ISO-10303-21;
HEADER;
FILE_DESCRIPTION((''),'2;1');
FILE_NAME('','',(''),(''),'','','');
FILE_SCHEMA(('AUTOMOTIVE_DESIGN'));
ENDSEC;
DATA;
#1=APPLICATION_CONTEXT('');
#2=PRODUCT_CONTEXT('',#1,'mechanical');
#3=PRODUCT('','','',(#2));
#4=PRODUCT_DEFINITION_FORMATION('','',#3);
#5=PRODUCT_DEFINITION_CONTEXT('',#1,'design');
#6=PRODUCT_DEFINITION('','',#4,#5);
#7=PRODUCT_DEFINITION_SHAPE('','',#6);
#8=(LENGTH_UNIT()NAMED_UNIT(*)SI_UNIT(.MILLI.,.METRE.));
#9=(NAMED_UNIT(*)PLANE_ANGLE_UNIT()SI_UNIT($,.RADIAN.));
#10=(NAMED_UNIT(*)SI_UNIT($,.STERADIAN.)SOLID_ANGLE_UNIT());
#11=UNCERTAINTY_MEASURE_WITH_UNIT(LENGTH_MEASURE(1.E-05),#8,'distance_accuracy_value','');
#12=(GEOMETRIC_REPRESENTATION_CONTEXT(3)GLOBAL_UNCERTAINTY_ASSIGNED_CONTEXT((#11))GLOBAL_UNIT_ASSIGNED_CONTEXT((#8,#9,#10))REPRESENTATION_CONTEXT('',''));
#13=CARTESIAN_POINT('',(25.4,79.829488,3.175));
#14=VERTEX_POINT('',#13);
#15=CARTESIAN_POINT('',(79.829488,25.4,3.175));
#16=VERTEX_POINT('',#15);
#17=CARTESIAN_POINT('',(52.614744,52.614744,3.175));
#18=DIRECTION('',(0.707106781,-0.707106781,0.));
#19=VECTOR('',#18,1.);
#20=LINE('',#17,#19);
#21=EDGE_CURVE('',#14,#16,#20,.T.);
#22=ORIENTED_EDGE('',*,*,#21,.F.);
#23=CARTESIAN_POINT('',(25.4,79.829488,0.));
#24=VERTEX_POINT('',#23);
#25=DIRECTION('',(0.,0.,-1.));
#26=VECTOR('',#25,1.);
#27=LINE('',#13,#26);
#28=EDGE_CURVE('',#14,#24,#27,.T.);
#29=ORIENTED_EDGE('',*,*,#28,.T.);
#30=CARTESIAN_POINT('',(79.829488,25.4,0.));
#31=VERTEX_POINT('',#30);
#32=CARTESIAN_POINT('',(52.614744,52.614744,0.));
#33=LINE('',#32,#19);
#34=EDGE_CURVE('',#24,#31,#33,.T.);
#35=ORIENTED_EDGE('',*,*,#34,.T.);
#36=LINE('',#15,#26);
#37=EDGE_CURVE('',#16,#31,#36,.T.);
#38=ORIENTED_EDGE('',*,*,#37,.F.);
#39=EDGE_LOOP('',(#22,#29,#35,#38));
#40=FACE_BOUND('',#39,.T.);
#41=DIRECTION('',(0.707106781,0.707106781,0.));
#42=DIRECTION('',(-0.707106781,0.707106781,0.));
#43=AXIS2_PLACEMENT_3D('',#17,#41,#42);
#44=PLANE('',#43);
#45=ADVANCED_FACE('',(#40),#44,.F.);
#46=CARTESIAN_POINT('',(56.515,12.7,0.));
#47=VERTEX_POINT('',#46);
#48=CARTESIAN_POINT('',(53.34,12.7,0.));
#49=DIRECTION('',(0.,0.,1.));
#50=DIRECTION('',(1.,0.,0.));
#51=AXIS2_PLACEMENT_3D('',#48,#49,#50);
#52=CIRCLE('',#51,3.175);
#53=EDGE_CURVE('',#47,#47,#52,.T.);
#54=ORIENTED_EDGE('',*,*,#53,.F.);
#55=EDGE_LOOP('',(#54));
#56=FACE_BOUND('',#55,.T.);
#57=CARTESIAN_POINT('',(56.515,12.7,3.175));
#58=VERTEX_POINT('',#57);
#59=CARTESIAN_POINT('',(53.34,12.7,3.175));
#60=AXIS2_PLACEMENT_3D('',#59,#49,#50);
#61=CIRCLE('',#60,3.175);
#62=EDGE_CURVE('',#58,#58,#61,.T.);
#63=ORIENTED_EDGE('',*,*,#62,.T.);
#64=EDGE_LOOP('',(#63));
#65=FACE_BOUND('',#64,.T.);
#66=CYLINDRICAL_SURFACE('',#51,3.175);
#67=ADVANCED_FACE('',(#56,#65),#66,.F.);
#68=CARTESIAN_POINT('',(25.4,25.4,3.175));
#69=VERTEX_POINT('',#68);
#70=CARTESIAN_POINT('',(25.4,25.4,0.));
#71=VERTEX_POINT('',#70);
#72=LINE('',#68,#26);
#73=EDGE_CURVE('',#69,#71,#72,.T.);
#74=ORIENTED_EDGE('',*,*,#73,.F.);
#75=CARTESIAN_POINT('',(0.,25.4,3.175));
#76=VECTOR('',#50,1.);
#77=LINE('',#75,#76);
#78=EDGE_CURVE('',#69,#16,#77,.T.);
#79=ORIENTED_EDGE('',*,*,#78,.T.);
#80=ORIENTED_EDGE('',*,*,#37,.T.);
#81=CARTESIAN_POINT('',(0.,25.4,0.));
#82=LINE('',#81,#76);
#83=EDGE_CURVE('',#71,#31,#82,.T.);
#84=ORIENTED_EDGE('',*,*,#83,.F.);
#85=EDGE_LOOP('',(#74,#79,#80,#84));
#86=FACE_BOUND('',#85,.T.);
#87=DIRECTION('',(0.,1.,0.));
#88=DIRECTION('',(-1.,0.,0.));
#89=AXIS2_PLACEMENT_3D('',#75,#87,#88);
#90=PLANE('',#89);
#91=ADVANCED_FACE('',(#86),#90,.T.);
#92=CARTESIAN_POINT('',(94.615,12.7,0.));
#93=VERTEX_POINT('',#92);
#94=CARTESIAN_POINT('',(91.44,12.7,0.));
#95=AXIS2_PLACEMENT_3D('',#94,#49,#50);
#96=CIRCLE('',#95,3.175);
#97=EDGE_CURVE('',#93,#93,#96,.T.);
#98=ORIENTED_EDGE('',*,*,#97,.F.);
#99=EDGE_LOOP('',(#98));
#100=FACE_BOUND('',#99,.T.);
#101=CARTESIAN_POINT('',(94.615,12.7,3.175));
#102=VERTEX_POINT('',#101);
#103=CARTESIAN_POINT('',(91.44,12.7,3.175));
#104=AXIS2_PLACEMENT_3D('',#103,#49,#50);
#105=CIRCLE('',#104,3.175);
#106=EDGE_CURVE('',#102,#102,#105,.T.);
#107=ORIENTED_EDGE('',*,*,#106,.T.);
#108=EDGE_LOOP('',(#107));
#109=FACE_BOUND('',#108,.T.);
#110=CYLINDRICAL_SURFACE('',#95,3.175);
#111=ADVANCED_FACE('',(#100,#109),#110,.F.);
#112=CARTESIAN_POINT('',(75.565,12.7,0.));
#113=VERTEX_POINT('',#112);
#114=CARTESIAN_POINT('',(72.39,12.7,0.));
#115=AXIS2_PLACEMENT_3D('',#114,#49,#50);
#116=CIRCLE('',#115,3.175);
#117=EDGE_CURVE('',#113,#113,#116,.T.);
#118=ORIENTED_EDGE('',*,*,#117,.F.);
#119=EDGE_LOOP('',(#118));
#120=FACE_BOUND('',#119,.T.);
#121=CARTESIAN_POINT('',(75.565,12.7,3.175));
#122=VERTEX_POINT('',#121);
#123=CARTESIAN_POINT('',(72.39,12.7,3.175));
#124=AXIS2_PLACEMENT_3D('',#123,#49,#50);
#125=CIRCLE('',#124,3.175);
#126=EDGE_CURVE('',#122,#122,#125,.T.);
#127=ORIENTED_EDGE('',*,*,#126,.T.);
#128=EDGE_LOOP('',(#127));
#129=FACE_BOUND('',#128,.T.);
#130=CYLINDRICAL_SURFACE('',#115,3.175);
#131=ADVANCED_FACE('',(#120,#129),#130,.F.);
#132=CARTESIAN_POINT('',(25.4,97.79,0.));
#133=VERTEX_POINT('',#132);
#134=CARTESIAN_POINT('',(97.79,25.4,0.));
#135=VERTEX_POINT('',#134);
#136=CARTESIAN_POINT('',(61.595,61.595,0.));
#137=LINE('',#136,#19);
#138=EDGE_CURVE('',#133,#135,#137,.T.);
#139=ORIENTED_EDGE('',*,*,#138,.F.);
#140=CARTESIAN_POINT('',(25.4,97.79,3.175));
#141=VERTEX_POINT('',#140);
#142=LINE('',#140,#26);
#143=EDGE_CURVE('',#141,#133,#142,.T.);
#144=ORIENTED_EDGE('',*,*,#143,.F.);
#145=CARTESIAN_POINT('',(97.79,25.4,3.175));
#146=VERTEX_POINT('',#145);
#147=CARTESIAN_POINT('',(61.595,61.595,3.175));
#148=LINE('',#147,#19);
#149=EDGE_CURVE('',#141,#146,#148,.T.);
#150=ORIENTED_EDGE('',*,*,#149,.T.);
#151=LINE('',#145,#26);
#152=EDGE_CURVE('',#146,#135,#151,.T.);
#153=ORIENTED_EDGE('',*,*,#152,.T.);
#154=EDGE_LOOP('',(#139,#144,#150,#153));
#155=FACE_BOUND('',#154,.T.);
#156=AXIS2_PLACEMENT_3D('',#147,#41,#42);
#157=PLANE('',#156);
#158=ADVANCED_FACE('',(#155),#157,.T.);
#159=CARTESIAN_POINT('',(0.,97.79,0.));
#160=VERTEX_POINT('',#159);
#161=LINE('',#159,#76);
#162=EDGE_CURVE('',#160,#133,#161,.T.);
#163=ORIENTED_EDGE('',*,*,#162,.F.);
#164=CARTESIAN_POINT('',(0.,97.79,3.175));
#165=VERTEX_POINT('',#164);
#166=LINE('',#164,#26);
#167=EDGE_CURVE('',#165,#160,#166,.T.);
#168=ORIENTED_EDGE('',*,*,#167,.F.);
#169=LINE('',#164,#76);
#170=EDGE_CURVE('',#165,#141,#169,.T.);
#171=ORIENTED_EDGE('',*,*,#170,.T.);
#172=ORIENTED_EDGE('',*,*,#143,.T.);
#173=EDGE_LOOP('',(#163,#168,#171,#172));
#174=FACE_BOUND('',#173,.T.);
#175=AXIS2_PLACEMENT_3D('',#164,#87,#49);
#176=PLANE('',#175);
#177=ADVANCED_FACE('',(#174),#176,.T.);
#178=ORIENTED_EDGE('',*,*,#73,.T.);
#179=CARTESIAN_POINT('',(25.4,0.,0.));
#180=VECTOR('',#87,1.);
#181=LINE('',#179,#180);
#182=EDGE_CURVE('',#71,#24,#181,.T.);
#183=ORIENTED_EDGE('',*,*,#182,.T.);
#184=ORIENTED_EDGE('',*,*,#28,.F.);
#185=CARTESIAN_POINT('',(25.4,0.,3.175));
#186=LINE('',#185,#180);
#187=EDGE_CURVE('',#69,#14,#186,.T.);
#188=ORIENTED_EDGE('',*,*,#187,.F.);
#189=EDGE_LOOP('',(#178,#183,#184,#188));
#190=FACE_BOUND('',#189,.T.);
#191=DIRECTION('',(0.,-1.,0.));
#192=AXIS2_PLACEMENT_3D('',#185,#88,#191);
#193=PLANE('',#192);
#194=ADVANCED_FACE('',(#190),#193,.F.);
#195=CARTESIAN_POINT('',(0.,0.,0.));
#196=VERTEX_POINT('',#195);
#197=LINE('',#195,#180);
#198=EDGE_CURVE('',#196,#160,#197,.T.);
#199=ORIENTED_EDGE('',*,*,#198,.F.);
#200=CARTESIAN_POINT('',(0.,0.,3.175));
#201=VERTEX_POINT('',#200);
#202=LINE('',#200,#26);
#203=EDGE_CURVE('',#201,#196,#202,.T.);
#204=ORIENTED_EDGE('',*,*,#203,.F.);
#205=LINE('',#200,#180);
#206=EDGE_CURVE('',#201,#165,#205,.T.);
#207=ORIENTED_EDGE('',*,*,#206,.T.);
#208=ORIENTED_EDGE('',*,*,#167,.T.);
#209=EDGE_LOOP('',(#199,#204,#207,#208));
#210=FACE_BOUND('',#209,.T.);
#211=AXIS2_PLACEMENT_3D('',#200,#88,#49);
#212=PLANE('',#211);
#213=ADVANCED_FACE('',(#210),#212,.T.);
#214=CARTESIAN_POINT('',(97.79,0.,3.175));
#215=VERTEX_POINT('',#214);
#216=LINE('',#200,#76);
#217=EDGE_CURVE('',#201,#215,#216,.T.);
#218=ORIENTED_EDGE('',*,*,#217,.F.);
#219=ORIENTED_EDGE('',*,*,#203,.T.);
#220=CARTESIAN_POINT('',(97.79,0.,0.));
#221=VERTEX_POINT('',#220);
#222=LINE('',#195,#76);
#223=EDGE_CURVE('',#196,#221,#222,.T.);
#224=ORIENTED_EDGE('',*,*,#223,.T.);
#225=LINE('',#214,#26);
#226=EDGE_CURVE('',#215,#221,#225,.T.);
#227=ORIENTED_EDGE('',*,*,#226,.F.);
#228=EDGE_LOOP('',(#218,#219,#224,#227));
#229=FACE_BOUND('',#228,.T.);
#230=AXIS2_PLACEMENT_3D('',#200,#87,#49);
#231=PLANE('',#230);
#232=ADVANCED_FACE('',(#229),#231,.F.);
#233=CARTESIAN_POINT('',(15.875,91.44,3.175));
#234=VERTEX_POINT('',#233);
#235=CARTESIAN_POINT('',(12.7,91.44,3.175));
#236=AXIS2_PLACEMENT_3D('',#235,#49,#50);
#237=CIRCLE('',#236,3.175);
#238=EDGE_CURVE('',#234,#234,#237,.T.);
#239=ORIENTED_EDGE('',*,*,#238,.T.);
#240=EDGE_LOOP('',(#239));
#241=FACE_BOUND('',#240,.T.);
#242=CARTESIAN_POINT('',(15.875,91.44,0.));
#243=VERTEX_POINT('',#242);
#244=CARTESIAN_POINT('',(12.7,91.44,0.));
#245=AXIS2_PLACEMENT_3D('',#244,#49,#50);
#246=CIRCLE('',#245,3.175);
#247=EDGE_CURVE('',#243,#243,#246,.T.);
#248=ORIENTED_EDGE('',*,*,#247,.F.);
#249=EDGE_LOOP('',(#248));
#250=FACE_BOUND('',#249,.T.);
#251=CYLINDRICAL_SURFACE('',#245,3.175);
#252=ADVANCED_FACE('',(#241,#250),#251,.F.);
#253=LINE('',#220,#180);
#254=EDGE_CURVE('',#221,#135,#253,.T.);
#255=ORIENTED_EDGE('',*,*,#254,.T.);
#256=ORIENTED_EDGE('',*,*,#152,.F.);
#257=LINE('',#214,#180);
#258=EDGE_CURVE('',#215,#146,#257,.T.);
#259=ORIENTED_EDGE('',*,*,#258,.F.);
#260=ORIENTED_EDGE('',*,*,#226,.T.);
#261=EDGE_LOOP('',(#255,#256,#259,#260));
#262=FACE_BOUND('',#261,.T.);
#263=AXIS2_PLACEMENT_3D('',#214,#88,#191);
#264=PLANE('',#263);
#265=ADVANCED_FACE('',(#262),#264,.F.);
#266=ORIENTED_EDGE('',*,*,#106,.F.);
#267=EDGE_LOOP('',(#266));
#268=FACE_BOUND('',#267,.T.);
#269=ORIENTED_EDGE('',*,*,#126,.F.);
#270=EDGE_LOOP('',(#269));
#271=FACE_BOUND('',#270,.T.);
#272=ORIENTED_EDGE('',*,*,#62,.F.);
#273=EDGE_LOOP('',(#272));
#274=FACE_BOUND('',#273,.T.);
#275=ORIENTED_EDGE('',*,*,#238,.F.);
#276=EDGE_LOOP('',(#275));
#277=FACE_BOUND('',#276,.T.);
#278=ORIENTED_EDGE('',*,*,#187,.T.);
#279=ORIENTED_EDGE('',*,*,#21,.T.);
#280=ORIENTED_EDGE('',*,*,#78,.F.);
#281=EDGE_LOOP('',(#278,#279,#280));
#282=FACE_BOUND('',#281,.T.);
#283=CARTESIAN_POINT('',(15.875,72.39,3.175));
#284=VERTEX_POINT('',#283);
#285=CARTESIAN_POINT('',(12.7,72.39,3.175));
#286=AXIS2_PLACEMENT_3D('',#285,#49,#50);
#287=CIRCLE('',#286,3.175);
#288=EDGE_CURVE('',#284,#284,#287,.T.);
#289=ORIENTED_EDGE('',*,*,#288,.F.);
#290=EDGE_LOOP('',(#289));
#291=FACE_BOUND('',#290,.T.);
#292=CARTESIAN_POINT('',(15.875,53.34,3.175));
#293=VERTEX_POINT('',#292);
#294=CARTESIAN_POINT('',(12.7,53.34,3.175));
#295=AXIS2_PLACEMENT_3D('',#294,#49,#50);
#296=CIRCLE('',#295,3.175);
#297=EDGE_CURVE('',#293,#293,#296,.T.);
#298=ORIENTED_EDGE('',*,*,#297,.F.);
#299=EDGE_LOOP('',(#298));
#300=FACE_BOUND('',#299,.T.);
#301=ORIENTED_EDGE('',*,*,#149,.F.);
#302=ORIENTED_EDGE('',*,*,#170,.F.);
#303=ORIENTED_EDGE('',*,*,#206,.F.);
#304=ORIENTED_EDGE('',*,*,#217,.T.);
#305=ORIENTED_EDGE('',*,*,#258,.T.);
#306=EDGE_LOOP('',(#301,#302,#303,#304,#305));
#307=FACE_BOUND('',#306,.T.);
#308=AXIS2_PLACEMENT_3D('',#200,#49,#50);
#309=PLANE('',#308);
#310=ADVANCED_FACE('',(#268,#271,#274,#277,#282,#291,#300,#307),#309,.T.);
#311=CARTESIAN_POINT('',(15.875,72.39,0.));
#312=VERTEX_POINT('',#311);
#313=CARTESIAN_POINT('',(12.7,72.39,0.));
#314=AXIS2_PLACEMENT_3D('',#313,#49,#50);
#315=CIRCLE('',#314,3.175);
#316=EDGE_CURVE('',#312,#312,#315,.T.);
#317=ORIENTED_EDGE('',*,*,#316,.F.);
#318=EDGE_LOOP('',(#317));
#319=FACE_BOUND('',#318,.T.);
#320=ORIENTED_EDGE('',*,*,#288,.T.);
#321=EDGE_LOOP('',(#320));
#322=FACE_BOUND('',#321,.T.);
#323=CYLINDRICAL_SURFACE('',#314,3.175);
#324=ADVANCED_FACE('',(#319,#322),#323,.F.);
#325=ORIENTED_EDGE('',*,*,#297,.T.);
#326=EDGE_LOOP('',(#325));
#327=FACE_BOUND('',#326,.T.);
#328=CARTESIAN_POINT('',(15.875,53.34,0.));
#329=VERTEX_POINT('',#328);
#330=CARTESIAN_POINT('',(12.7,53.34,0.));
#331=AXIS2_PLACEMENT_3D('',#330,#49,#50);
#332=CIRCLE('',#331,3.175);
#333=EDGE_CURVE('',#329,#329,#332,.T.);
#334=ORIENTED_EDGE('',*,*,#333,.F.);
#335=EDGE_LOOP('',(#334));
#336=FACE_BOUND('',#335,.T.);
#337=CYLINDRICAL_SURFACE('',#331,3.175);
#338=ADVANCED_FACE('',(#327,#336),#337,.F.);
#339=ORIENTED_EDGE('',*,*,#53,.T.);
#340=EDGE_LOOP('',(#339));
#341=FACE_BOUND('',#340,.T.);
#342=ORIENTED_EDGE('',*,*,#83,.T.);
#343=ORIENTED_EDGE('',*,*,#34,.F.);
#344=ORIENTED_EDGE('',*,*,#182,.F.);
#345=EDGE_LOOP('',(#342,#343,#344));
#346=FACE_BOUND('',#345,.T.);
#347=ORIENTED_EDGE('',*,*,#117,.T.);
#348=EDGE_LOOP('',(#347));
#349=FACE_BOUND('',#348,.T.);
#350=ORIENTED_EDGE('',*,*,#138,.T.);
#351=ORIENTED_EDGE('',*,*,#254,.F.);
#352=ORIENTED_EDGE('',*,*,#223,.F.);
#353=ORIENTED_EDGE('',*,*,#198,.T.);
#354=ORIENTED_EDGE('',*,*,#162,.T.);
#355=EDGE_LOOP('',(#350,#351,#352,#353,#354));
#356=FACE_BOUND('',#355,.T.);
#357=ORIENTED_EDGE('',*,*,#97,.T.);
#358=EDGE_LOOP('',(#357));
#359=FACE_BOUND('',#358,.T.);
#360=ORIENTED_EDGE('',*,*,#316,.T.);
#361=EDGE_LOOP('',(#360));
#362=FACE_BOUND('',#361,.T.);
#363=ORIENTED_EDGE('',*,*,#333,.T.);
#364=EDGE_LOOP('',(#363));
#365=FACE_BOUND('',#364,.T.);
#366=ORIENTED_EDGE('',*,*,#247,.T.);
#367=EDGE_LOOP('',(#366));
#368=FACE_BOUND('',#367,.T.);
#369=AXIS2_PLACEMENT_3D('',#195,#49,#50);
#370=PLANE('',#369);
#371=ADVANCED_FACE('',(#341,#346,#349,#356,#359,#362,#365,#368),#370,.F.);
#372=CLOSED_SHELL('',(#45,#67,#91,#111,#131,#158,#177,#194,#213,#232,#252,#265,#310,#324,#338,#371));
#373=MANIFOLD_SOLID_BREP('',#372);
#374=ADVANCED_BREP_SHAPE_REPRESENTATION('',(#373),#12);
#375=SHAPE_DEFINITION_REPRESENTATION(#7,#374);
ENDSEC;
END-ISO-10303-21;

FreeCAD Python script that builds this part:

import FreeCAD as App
import Part
import Sketcher
from FreeCAD import Vector
Q = App.Units.Quantity


def add_polygon(sketch, points):
    """Adds a closed chain of lines whose ends are joined by coincident constraints."""
    first, n = sketch.GeometryCount, len(points)
    for a, b in zip(points, points[1:] + points[:1]):
        sketch.addGeometry(Part.LineSegment(App.Vector(*a, 0), App.Vector(*b, 0)), False)
    for i in range(n):
        sketch.addConstraint(Sketcher.Constraint("Coincident", first + i, 2, first + (i + 1) % n, 1))

doc = App.newDocument("Part")
params = doc.addObject("Spreadsheet::Sheet", "Params")
for row, (alias, value) in enumerate([
    ("sketch1_width", "1 in"),
    ("sketch1_width2", "3.85 in"),
    ("pad1_length", "0.125 in"),
    ("sketch2_diameter", "0.25 in"),
], start=1):
    params.set(f"A{row}", alias)
    params.set(f"B{row}", "=" + value)
    params.setAlias(f"B{row}", alias)

body = doc.addObject("PartDesign::Body", "Body")

sketch1 = body.newObject("Sketcher::SketchObject", "Sketch")
sketch1.AttachmentSupport = (doc.getObject("XY_Plane"), [""])
sketch1.MapMode = "FlatFace"
add_polygon(sketch1, [(98, 25), (25, 98), (0, 98), (0, 0), (98, 0)])
add_polygon(sketch1, [(25, 25), (25, 80), (80, 25)])
sketch1.addConstraint(Sketcher.Constraint("Horizontal", 1))
sketch1.addConstraint(Sketcher.Constraint("Vertical", 2))
sketch1.addConstraint(Sketcher.Constraint("Horizontal", 3))
sketch1.addConstraint(Sketcher.Constraint("Vertical", 4))
sketch1.addConstraint(Sketcher.Constraint("Vertical", 5))
sketch1.addConstraint(Sketcher.Constraint("Horizontal", 7))
sketch1.addConstraint(Sketcher.Constraint("Coincident", 2, 2, -1, 1))
sketch1.addConstraint(Sketcher.Constraint("Parallel", 0, 6))
sketch1.addConstraint(Sketcher.Constraint("Horizontal", 4, 2, 6, 2))
sketch1.addConstraint(Sketcher.Constraint("Vertical", 0, 2, 5, 2))
sketch1.addConstraint(Sketcher.Constraint("Equal", 3, 2))
sketch1.addConstraint(Sketcher.Constraint("Equal", 1, 4))
sketch1.addConstraint(Sketcher.Constraint("DistanceX", 1, 2, 1, 1, Q("1 in")))
sketch1.addConstraint(Sketcher.Constraint("DistanceX", 3, 1, 3, 2, Q("3.85 in")))
sketch1.addConstraint(Sketcher.Constraint("Distance", 6, 76.97492))
sketch1.setExpression("Constraints[20]", "Params.sketch1_width")
sketch1.setExpression("Constraints[21]", "Params.sketch1_width2")
pad1 = body.newObject("PartDesign::Pad", "Pad")
pad1.Profile = sketch1
pad1.setExpression("Length", "Params.pad1_length")

sketch2 = body.newObject("Sketcher::SketchObject", "Sketch001")
sketch2.AttachmentSupport = (doc.getObject("XY_Plane"), [""])
sketch2.MapMode = "FlatFace"
sketch2.AttachmentOffset = App.Placement(Vector(0, 0, 0.125 * 25.4), App.Rotation())
sketch2.addGeometry(Part.Circle(Vector(53.3, 12.7, 0), Vector(0, 0, 1), 3.2), False)
sketch2.addGeometry(Part.Circle(Vector(72.4, 12.7, 0), Vector(0, 0, 1), 3.2), False)
sketch2.addGeometry(Part.Circle(Vector(12.7, 53.3, 0), Vector(0, 0, 1), 3.2), False)
sketch2.addGeometry(Part.Circle(Vector(12.7, 72.4, 0), Vector(0, 0, 1), 3.2), False)
sketch2.addGeometry(Part.Circle(Vector(12.7, 91.4, 0), Vector(0, 0, 1), 3.2), False)
sketch2.addGeometry(Part.Circle(Vector(91.4, 12.7, 0), Vector(0, 0, 1), 3.2), False)
sketch2.addConstraint(Sketcher.Constraint("Equal", 0, 1))
sketch2.addConstraint(Sketcher.Constraint("Equal", 1, 2))
sketch2.addConstraint(Sketcher.Constraint("Equal", 2, 3))
sketch2.addConstraint(Sketcher.Constraint("Equal", 3, 4))
sketch2.addConstraint(Sketcher.Constraint("Equal", 4, 5))
sketch2.addConstraint(Sketcher.Constraint("Horizontal", 0, 3, 1, 3))
sketch2.addConstraint(Sketcher.Constraint("Horizontal", 1, 3, 5, 3))
sketch2.addConstraint(Sketcher.Constraint("Vertical", 2, 3, 3, 3))
sketch2.addConstraint(Sketcher.Constraint("Vertical", 3, 3, 4, 3))
sketch2.addConstraint(Sketcher.Constraint("Diameter", 0, Q("0.25 in")))
sketch2.addConstraint(Sketcher.Constraint("DistanceX", -1, 1, 0, 3, Q("2.1 in")))
sketch2.addConstraint(Sketcher.Constraint("DistanceY", -1, 1, 0, 3, Q("0.5 in")))
sketch2.addConstraint(Sketcher.Constraint("DistanceX", -1, 1, 2, 3, Q("0.5 in")))
sketch2.addConstraint(Sketcher.Constraint("DistanceY", -1, 1, 2, 3, Q("2.1 in")))
sketch2.addConstraint(Sketcher.Constraint("DistanceY", -1, 1, 4, 3, Q("3.6 in")))
sketch2.addConstraint(Sketcher.Constraint("DistanceX", -1, 1, 5, 3, Q("3.6 in")))
sketch2.addConstraint(Sketcher.Constraint("DistanceX", -1, 1, 1, 3, Q("2.85 in")))
sketch2.addConstraint(Sketcher.Constraint("DistanceY", -1, 1, 3, 3, Q("2.85 in")))
sketch2.setExpression("Constraints[9]", "Params.sketch2_diameter")
pocket1 = body.newObject("PartDesign::Pocket", "Pocket")
pocket1.Profile = sketch2
pocket1.Type = "ThroughAll"

doc.recompute()
